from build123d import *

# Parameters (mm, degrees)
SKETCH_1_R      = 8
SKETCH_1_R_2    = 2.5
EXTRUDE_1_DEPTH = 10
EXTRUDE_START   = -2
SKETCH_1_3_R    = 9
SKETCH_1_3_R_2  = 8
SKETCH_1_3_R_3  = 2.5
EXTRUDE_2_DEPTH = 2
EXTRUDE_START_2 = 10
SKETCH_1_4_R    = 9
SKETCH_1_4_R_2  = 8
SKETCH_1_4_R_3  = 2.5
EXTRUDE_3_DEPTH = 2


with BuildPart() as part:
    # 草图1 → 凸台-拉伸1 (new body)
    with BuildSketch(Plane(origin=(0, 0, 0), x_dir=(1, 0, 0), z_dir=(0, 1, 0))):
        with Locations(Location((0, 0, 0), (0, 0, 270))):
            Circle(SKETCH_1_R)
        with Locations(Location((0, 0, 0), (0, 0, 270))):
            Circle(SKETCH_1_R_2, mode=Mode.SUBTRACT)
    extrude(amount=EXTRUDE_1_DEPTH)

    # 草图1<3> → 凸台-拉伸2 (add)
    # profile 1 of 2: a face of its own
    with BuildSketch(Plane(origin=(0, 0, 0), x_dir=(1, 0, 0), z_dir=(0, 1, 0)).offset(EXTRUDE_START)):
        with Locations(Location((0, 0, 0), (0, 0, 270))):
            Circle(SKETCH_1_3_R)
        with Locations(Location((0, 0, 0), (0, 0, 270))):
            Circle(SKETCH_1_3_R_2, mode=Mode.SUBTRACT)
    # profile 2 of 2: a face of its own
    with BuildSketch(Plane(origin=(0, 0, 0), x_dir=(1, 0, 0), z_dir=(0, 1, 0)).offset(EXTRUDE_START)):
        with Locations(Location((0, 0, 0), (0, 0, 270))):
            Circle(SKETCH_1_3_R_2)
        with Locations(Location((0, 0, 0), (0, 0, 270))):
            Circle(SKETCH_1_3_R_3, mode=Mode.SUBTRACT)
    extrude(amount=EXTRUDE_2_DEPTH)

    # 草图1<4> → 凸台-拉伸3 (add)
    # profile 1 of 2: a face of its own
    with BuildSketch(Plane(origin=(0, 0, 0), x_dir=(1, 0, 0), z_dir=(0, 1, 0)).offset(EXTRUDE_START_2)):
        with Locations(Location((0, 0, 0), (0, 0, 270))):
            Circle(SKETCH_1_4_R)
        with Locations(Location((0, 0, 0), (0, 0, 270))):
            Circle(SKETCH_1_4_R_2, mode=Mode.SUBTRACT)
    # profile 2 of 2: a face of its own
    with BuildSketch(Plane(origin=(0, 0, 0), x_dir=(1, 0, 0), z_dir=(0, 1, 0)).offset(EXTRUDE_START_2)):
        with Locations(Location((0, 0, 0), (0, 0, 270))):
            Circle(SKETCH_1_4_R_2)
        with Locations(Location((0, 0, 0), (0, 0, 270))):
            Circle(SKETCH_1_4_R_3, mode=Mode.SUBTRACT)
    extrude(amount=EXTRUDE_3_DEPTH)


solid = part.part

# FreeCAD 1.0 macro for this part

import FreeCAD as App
import Part
import Sketcher
Q = App.Units.Quantity

doc = App.newDocument("Part")
params = doc.addObject("Spreadsheet::Sheet", "Params")
for row, (alias, value) in enumerate([
    ("sketch1_diameter", "16 mm"),
    ("sketch1_diameter2", "5 mm"),
    ("pad1_length", "10 mm"),
    ("sketch2_diameter", "18 mm"),
    ("sketch2_diameter2", "5 mm"),
    ("pad2_length", "2 mm"),
    ("sketch3_diameter", "18 mm"),
    ("sketch3_diameter2", "5 mm"),
    ("pad3_length", "2 mm"),
], start=1):
    params.set(f"A{row}", alias)
    params.set(f"B{row}", "=" + value)
    params.setAlias(f"B{row}", alias)

body = doc.addObject("PartDesign::Body", "Body")

# Sketch on XZ plane
sketch1 = doc.addObject("Sketcher::SketchObject", "Sketch")
body.addObject(sketch1)
sketch1.AttachmentSupport = (doc.XZ_Plane, [""])
sketch1.MapMode = "FlatFace"
sketch1.addGeometry(Part.Circle(App.Vector(0, 0, 0), App.Vector(0, 0, 1), 8), False)
sketch1.addGeometry(Part.Circle(App.Vector(0, 0, 0), App.Vector(0, 0, 1), 2.5), False)
sketch1.addConstraint(Sketcher.Constraint("Coincident", 0, 3, -1, 1))
sketch1.addConstraint(Sketcher.Constraint("Coincident", 1, 3, -1, 1))
sketch1.addConstraint(Sketcher.Constraint("Diameter", 0, Q("16 mm")))
sketch1.addConstraint(Sketcher.Constraint("Diameter", 1, Q("5 mm")))
sketch1.setExpression("Constraints[2]", "Params.sketch1_diameter")
sketch1.setExpression("Constraints[3]", "Params.sketch1_diameter2")
pad1 = doc.addObject("PartDesign::Pad", "Pad")
body.addObject(pad1)
pad1.Profile = sketch1
pad1.setExpression("Length", "Params.pad1_length")
pad1.Reversed = True

# Sketch on XZ plane
sketch2 = doc.addObject("Sketcher::SketchObject", "Sketch001")
body.addObject(sketch2)
sketch2.AttachmentSupport = (doc.XZ_Plane, [""])
sketch2.MapMode = "FlatFace"
sketch2.AttachmentOffset = App.Placement(App.Vector(0, 0, 2), App.Rotation())
sketch2.addGeometry(Part.Circle(App.Vector(0, 0, 0), App.Vector(0, 0, 1), 9), False)
sketch2.addGeometry(Part.Circle(App.Vector(0, 0, 0), App.Vector(0, 0, 1), 2.5), False)
sketch2.addConstraint(Sketcher.Constraint("Coincident", 0, 3, -1, 1))
sketch2.addConstraint(Sketcher.Constraint("Coincident", 1, 3, -1, 1))
sketch2.addConstraint(Sketcher.Constraint("Diameter", 0, Q("18 mm")))
sketch2.addConstraint(Sketcher.Constraint("Diameter", 1, Q("5 mm")))
sketch2.setExpression("Constraints[2]", "Params.sketch2_diameter")
sketch2.setExpression("Constraints[3]", "Params.sketch2_diameter2")
pad2 = doc.addObject("PartDesign::Pad", "Pad001")
body.addObject(pad2)
pad2.Profile = sketch2
pad2.setExpression("Length", "Params.pad2_length")
pad2.Reversed = True

# Sketch on XZ plane
sketch3 = doc.addObject("Sketcher::SketchObject", "Sketch002")
body.addObject(sketch3)
sketch3.AttachmentSupport = (doc.XZ_Plane, [""])
sketch3.MapMode = "FlatFace"
sketch3.AttachmentOffset = App.Placement(App.Vector(0, 0, -10), App.Rotation())
sketch3.addGeometry(Part.Circle(App.Vector(0, 0, 0), App.Vector(0, 0, 1), 9), False)
sketch3.addGeometry(Part.Circle(App.Vector(0, 0, 0), App.Vector(0, 0, 1), 2.5), False)
sketch3.addConstraint(Sketcher.Constraint("Coincident", 0, 3, -1, 1))
sketch3.addConstraint(Sketcher.Constraint("Coincident", 1, 3, -1, 1))
sketch3.addConstraint(Sketcher.Constraint("Diameter", 0, Q("18 mm")))
sketch3.addConstraint(Sketcher.Constraint("Diameter", 1, Q("5 mm")))
sketch3.setExpression("Constraints[2]", "Params.sketch3_diameter")
sketch3.setExpression("Constraints[3]", "Params.sketch3_diameter2")
pad3 = doc.addObject("PartDesign::Pad", "Pad002")
body.addObject(pad3)
pad3.Profile = sketch3
pad3.setExpression("Length", "Params.pad3_length")
pad3.Reversed = True

doc.recompute()
